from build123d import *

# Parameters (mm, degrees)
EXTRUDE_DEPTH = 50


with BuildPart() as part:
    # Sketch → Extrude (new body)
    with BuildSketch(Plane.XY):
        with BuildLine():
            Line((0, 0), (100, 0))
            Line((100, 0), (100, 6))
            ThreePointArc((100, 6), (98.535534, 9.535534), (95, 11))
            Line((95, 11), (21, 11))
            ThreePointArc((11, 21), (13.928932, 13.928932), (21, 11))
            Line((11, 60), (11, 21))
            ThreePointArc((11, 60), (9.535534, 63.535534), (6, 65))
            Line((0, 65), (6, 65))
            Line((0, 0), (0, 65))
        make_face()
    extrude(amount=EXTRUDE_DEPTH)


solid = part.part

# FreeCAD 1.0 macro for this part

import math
import FreeCAD as App
import Part
import Sketcher
from FreeCAD import Vector
Q = App.Units.Quantity

doc = App.newDocument("Part")
body = doc.addObject("PartDesign::Body", "Body")

# Sketch on XY plane
sketch1 = body.newObject("Sketcher::SketchObject", "Sketch")
sketch1.AttachmentSupport = (doc.getObject("XY_Plane"), [""])
sketch1.MapMode = "FlatFace"
sketch1.addGeometry(Part.LineSegment(Vector(0, 0, 0), Vector(100, 0, 0)), False)
sketch1.addGeometry(Part.LineSegment(Vector(100, 0, 0), Vector(100, 6, 0)), False)
sketch1.addGeometry(Part.ArcOfCircle(Part.Circle(Vector(95, 6, 0), Vector(0, 0, 1), 5), math.radians(0), math.radians(90)), False)
sketch1.addGeometry(Part.LineSegment(Vector(95, 11, 0), Vector(21, 11, 0)), False)
sketch1.addGeometry(Part.ArcOfCircle(Part.Circle(Vector(21, 21, 0), Vector(0, 0, 1), 10), math.radians(180), math.radians(270)), False)
sketch1.addGeometry(Part.LineSegment(Vector(11, 21, 0), Vector(11, 60, 0)), False)
sketch1.addGeometry(Part.ArcOfCircle(Part.Circle(Vector(6, 60, 0), Vector(0, 0, 1), 5), math.radians(0), math.radians(90)), False)
sketch1.addGeometry(Part.LineSegment(Vector(6, 65, 0), Vector(0, 65, 0)), False)
sketch1.addGeometry(Part.LineSegment(Vector(0, 65, 0), Vector(0, 0, 0)), False)
sketch1.addConstraint(Sketcher.Constraint("Coincident", 0, 2, 1, 1))
sketch1.addConstraint(Sketcher.Constraint("Tangent", 1, 2, 2, 1))
sketch1.addConstraint(Sketcher.Constraint("Tangent", 2, 2, 3, 1))
sketch1.addConstraint(Sketcher.Constraint("Tangent", 3, 2, 4, 2))
sketch1.addConstraint(Sketcher.Constraint("Tangent", 4, 1, 5, 1))
sketch1.addConstraint(Sketcher.Constraint("Tangent", 5, 2, 6, 1))
sketch1.addConstraint(Sketcher.Constraint("Tangent", 6, 2, 7, 1))
sketch1.addConstraint(Sketcher.Constraint("Coincident", 7, 2, 8, 1))
sketch1.addConstraint(Sketcher.Constraint("Coincident", 8, 2, 0, 1))
sketch1.addConstraint(Sketcher.Constraint("Horizontal", 0))
sketch1.addConstraint(Sketcher.Constraint("Vertical", 1))
sketch1.addConstraint(Sketcher.Constraint("Horizontal", 3))
sketch1.addConstraint(Sketcher.Constraint("Vertical", 5))
sketch1.addConstraint(Sketcher.Constraint("Horizontal", 7))
sketch1.addConstraint(Sketcher.Constraint("Vertical", 8))
sketch1.addConstraint(Sketcher.Constraint("Coincident", 8, 2, -1, 1))
sketch1.addConstraint(Sketcher.Constraint("Equal", 2, 6))
sketch1.addConstraint(Sketcher.Constraint("Equal", 7, 1))
sketch1.addConstraint(Sketcher.Constraint("Radius", 2, Q("5 mm")))
sketch1.addConstraint(Sketcher.Constraint("Radius", 4, Q("9.999999 mm")))
sketch1.addConstraint(Sketcher.Constraint("DistanceX", 0, 1, 0, 2, Q("100 mm")))
sketch1.addConstraint(Sketcher.Constraint("DistanceX", 3, 2, 3, 1, Q("74 mm")))
sketch1.addConstraint(Sketcher.Constraint("DistanceY", 5, 1, 5, 2, Q("39 mm")))
pad1 = body.newObject("PartDesign::Pad", "Pad")
pad1.Profile = sketch1
pad1.Length = 50

doc.recompute()
